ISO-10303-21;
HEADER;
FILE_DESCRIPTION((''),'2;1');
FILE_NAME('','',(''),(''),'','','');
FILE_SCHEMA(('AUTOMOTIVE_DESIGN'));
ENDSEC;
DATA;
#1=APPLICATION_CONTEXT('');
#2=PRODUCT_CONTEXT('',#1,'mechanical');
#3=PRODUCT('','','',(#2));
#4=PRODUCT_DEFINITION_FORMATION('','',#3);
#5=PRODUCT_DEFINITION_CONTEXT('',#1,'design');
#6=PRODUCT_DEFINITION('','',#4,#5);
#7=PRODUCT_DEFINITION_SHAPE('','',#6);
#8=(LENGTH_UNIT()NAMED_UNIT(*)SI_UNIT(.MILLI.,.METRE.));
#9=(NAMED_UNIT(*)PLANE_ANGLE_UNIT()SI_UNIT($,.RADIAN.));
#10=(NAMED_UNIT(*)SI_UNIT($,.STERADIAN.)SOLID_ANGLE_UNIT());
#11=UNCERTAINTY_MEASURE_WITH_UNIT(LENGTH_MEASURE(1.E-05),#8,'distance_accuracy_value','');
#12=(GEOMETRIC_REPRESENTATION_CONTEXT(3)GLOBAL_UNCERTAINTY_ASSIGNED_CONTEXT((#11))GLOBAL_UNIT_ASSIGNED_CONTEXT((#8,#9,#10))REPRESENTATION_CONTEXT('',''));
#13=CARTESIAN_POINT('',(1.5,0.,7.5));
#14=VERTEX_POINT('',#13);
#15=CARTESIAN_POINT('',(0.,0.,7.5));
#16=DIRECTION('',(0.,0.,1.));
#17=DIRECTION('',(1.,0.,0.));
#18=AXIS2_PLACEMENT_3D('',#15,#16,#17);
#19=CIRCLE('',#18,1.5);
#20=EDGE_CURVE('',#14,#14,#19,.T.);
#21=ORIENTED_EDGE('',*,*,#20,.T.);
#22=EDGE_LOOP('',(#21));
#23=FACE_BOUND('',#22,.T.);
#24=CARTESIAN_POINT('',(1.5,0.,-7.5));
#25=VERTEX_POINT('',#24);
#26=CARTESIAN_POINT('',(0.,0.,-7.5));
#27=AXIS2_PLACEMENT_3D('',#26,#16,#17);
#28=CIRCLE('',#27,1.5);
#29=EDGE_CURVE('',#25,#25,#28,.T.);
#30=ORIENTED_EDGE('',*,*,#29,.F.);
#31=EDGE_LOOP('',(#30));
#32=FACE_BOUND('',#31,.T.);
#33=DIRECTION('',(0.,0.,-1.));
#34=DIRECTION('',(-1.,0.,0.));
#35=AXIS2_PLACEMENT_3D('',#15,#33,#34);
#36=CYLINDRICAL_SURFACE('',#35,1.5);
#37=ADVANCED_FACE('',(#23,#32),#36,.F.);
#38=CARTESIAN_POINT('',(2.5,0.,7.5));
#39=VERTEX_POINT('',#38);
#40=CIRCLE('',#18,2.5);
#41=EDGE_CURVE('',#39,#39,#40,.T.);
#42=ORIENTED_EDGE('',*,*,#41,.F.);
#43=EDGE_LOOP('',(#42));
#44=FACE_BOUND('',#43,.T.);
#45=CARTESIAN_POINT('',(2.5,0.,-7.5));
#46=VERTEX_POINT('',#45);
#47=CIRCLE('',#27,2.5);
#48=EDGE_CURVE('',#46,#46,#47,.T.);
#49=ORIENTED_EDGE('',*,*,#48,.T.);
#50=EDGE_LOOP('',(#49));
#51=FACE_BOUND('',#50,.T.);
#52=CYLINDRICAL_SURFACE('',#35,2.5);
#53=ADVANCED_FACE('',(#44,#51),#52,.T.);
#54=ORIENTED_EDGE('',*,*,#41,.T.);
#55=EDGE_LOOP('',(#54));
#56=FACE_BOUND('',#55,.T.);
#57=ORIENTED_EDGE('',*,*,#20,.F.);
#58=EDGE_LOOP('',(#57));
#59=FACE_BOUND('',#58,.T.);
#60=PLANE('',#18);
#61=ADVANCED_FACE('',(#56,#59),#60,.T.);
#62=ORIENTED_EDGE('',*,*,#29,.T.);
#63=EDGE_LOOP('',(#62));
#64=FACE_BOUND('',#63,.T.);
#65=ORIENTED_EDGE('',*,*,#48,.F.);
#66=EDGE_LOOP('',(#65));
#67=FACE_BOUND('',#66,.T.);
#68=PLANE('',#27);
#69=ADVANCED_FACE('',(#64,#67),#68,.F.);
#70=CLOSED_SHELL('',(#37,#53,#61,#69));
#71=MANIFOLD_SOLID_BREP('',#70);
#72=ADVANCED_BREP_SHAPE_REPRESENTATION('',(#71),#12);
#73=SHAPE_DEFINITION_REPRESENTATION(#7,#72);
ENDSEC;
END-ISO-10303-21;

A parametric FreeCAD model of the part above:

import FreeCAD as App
import Part
import Sketcher

V = App.Vector
Q = App.Units.Quantity

doc = App.newDocument("Part")
body = doc.addObject("PartDesign::Body", "Body")

sketch1 = body.newObject("Sketcher::SketchObject", "Sketch")
sketch1.AttachmentSupport = (doc.getObject("XY_Plane"), [""])
sketch1.MapMode = "FlatFace"
sketch1.addGeometry(Part.Circle(V(0, 0, 0), V(0, 0, 1), 2.5), False)
sketch1.addGeometry(Part.Circle(V(0, 0, 0), V(0, 0, 1), 1.5), False)
sketch1.addConstraint(Sketcher.Constraint("Coincident", 0, 3, -1, 1))
sketch1.addConstraint(Sketcher.Constraint("Coincident", 1, 3, -1, 1))
sketch1.addConstraint(Sketcher.Constraint("Diameter", 0, Q("5 mm")))
sketch1.addConstraint(Sketcher.Constraint("Diameter", 1, Q("3 mm")))
pad1 = body.newObject("PartDesign::Pad", "Pad")
pad1.Profile = sketch1
pad1.Length = 15
pad1.Midplane = True

doc.recompute()
